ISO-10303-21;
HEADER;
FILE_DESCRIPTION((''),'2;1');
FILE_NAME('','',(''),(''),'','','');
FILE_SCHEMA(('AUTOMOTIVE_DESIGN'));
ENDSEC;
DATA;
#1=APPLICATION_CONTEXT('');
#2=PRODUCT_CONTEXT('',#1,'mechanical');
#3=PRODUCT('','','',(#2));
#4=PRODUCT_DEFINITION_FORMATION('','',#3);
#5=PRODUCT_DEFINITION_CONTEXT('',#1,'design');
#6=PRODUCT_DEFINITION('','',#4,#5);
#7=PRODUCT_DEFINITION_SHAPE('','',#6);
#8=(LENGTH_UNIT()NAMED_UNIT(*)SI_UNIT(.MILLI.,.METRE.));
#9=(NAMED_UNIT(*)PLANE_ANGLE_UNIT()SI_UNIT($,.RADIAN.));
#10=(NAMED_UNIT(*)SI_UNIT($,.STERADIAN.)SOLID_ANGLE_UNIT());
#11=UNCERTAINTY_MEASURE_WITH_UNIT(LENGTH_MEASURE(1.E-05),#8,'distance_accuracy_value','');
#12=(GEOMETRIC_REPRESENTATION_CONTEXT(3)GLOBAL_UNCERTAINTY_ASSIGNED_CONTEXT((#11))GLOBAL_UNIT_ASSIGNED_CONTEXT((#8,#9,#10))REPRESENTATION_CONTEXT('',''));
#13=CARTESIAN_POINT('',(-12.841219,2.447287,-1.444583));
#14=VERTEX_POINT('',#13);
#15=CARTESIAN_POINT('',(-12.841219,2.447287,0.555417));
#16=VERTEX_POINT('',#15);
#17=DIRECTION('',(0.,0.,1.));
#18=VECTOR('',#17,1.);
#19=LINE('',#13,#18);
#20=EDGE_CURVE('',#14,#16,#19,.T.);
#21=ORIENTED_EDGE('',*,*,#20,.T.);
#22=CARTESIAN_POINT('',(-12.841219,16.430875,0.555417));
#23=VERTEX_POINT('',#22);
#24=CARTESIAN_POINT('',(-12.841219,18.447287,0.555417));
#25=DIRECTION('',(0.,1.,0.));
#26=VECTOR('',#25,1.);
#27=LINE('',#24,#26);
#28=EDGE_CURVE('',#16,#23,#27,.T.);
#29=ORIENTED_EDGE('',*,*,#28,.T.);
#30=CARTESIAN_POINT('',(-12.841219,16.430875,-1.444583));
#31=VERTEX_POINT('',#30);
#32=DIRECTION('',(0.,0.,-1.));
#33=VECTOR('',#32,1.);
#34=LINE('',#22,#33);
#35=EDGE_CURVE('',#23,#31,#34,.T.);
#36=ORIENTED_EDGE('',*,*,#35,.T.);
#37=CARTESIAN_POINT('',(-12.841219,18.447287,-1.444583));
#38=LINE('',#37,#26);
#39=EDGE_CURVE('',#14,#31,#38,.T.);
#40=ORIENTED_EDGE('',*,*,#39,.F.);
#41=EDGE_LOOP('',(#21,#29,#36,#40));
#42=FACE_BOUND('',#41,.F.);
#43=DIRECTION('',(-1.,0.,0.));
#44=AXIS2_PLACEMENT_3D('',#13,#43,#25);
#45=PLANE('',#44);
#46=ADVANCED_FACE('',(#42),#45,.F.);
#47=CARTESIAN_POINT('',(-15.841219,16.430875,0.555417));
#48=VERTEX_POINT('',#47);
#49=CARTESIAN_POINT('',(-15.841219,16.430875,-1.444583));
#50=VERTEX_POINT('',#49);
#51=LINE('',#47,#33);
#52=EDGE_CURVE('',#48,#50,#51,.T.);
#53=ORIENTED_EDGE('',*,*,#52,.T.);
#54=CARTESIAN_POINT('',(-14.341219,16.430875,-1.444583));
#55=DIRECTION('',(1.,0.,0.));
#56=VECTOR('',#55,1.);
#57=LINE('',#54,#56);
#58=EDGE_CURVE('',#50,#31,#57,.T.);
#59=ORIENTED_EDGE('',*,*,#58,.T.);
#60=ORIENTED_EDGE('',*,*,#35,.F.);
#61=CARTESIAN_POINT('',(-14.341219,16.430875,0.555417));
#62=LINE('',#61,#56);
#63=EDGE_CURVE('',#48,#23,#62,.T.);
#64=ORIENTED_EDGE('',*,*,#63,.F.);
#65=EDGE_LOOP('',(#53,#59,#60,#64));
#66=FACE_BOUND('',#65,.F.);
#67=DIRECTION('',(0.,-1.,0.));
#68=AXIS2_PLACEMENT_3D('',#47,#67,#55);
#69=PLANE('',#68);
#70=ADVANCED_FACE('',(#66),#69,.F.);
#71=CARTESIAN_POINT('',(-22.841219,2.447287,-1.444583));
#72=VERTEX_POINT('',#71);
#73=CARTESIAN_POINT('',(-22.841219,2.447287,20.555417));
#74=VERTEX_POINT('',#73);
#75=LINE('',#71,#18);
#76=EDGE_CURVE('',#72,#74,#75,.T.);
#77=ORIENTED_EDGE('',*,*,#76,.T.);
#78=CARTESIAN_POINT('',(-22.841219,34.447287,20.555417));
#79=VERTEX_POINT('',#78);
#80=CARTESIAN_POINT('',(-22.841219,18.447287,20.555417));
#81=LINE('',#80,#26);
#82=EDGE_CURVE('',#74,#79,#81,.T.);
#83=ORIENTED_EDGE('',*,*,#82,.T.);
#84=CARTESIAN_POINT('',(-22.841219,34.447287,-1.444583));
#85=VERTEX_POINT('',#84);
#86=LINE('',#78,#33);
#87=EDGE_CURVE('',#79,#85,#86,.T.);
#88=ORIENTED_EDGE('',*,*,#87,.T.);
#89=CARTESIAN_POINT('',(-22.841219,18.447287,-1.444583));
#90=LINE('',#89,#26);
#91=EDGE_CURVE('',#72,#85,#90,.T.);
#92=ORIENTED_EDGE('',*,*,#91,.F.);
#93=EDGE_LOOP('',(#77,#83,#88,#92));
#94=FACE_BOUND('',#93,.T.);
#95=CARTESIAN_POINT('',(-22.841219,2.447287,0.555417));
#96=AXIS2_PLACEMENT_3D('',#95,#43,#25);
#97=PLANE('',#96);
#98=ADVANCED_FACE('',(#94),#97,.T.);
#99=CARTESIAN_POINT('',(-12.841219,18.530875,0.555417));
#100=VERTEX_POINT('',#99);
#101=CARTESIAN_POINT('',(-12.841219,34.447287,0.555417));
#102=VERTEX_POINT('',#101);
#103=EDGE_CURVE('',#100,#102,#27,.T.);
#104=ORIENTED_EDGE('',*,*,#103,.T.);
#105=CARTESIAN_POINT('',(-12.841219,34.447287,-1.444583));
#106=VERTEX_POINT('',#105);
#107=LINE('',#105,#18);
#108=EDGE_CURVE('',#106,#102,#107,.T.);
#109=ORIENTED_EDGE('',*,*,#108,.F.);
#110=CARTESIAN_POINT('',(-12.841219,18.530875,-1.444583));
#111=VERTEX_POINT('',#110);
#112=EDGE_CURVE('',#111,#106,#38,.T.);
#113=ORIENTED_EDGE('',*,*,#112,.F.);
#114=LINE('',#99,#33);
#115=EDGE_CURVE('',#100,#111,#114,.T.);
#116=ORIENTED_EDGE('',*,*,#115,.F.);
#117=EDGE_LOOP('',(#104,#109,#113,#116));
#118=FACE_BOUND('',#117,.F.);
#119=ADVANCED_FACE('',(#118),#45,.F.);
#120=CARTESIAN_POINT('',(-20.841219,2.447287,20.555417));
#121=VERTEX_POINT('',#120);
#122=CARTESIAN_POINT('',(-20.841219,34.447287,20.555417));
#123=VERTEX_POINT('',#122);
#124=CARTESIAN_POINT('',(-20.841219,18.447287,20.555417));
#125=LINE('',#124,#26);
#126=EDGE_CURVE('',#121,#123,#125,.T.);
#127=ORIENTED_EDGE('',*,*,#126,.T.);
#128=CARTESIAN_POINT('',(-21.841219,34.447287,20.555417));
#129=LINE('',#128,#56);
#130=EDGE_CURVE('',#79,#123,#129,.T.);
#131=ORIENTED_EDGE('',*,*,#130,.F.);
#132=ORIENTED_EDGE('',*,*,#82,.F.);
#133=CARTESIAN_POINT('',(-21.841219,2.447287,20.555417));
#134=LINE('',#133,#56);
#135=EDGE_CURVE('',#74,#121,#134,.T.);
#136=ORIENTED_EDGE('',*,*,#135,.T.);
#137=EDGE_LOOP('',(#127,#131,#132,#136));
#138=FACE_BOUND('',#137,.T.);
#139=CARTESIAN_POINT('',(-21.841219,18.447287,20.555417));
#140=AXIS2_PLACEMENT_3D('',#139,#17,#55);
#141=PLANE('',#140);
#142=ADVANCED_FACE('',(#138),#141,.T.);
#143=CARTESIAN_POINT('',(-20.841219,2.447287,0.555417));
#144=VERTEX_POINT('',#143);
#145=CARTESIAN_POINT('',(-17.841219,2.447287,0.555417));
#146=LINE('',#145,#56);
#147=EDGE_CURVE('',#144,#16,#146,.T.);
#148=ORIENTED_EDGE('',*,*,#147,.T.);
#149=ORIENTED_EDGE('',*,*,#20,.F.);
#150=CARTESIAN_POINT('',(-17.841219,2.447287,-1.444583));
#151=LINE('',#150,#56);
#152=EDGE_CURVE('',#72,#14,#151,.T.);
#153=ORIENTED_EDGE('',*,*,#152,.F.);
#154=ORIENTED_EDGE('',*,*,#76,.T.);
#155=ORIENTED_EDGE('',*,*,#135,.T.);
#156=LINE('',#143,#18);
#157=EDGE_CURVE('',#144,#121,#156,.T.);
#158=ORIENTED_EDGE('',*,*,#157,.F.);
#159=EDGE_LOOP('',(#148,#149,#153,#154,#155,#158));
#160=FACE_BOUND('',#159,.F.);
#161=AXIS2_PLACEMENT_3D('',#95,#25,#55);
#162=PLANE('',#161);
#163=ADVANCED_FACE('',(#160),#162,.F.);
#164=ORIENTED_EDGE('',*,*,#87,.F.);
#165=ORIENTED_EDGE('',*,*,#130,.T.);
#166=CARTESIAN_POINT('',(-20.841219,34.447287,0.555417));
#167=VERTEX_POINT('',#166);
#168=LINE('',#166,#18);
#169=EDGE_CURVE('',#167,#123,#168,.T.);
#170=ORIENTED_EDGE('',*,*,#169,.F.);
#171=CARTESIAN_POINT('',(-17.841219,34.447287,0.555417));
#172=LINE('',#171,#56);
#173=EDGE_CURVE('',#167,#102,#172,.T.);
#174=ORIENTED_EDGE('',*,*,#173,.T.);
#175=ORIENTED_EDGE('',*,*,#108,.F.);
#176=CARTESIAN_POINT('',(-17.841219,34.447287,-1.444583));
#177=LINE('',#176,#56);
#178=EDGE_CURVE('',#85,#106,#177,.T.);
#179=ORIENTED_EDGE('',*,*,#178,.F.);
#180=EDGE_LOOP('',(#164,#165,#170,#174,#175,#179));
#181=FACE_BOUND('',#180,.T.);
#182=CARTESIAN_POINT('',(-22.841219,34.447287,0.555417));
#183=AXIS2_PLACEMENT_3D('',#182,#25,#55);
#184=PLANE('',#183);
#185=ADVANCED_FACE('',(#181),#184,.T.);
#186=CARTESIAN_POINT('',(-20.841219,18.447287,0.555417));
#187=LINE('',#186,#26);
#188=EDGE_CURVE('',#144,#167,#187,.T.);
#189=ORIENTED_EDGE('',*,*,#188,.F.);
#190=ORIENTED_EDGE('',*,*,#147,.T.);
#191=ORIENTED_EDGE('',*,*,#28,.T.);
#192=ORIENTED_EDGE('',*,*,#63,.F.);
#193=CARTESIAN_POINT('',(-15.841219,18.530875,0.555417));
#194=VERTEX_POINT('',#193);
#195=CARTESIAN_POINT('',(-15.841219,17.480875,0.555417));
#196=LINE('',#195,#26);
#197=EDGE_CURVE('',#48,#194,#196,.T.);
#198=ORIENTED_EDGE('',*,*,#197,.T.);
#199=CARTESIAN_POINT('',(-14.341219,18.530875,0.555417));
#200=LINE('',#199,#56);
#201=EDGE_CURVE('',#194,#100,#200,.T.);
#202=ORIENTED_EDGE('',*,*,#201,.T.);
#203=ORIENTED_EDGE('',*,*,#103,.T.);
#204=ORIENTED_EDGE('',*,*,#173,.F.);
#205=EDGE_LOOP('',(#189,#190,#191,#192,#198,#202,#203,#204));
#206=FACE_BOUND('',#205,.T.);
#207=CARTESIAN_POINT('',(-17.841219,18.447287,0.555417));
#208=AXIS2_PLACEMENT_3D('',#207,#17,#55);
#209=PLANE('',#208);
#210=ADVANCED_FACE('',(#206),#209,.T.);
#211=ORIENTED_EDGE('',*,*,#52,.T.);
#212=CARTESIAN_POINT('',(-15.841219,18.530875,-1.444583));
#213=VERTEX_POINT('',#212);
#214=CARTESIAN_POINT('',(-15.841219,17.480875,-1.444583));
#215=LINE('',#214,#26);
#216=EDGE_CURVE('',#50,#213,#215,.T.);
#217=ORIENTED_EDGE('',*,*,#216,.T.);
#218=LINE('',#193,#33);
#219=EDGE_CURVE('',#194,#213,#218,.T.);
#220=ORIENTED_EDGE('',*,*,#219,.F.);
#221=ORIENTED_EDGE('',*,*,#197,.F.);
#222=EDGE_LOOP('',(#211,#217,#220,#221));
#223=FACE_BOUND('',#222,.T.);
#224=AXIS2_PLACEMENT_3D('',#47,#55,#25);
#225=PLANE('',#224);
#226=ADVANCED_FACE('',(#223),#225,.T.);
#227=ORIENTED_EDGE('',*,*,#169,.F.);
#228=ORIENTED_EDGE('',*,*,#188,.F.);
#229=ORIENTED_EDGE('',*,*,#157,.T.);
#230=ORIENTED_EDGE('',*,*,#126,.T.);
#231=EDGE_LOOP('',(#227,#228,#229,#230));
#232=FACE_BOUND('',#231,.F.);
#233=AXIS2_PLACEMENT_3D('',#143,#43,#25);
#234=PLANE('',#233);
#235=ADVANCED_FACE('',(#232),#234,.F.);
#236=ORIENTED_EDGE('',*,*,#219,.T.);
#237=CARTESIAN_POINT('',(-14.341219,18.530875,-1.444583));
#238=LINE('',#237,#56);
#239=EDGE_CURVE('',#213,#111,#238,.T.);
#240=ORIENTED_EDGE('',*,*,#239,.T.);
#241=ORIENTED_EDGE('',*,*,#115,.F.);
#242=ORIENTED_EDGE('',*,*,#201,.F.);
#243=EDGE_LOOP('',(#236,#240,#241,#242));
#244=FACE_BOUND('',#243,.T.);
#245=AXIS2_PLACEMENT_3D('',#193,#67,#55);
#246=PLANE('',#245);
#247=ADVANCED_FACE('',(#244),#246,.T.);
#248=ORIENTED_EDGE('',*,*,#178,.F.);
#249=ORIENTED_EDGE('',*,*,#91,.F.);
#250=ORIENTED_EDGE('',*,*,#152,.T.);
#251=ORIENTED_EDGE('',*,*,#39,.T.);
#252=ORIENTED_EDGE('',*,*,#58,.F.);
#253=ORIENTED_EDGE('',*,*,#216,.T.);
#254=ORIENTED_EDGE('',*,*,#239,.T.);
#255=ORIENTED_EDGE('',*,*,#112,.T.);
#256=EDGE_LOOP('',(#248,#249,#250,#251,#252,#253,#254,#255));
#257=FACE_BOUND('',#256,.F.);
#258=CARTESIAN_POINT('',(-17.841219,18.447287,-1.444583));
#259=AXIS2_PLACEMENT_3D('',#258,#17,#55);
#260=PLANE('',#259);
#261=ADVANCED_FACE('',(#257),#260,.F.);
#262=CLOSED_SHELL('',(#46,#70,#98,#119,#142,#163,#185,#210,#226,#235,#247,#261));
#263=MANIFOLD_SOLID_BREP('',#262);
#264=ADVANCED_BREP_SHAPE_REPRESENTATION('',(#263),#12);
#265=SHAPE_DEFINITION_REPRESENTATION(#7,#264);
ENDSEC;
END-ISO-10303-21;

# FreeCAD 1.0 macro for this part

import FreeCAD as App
import Part
import Sketcher


def add_polygon(sketch, points):
    """Adds a closed chain of lines whose ends are joined by coincident constraints."""
    first, n = sketch.GeometryCount, len(points)
    for a, b in zip(points, points[1:] + points[:1]):
        sketch.addGeometry(Part.LineSegment(App.Vector(*a, 0), App.Vector(*b, 0)), False)
    for i in range(n):
        sketch.addConstraint(Sketcher.Constraint("Coincident", first + i, 2, first + (i + 1) % n, 1))

doc = App.newDocument("Part")
params = doc.addObject("Spreadsheet::Sheet", "Params")
for row, (alias, value) in enumerate([
    ("sketch1_width", "10 mm"),
    ("sketch1_height", "32 mm"),
    ("pad1_length", "2 mm"),
    ("sketch2_width", "2 mm"),
    ("sketch2_height", "32 mm"),
    ("pad2_length", "20 mm"),
    ("sketch3_width", "3 mm"),
    ("sketch3_height", "2.1 mm"),
    ("pocket1_length", "2 mm"),
], start=1):
    params.set(f"A{row}", alias)
    params.set(f"B{row}", "=" + value)
    params.setAlias(f"B{row}", alias)

body = doc.addObject("PartDesign::Body", "Body")

# Sketch on XY plane
sketch1 = doc.addObject("Sketcher::SketchObject", "Sketch")
body.addObject(sketch1)
sketch1.AttachmentSupport = (doc.XY_Plane, [""])
sketch1.MapMode = "FlatFace"
add_polygon(sketch1, [(0, 32), (0, 0), (10, 0), (10, 32)])  # lines 0-3
sketch1.addConstraint([
    Sketcher.Constraint("Vertical", 0),
    Sketcher.Constraint("Horizontal", 1),
    Sketcher.Constraint("Vertical", 2),
    Sketcher.Constraint("Horizontal", 3),
    Sketcher.Constraint("Coincident", 0, 2, -1, 1),
    Sketcher.Constraint("DistanceX", 1, 1, 1, 2, 10.0),
    Sketcher.Constraint("DistanceY", 0, 2, 0, 1, 32.0),
])
sketch1.setExpression("Constraints[9]", "Params.sketch1_width")
sketch1.setExpression("Constraints[10]", "Params.sketch1_height")
pad1 = doc.addObject("PartDesign::Pad", "Pad")
body.addObject(pad1)
pad1.Profile = sketch1
pad1.setExpression("Length", "Params.pad1_length")

# Sketch on XY plane
sketch2 = doc.addObject("Sketcher::SketchObject", "Sketch001")
body.addObject(sketch2)
sketch2.AttachmentSupport = (doc.XY_Plane, [""])
sketch2.MapMode = "FlatFace"
sketch2.AttachmentOffset = App.Placement(App.Vector(0, 0, 2), App.Rotation())
add_polygon(sketch2, [(0, 32), (0, 0), (2, 0), (2, 32)])  # lines 0-3
sketch2.addConstraint([
    Sketcher.Constraint("Vertical", 0),
    Sketcher.Constraint("Horizontal", 1),
    Sketcher.Constraint("Vertical", 2),
    Sketcher.Constraint("Horizontal", 3),
    Sketcher.Constraint("Coincident", 0, 2, -1, 1),
    Sketcher.Constraint("DistanceX", 1, 1, 1, 2, 2.0),
    Sketcher.Constraint("DistanceY", 0, 2, 0, 1, 32.0),
])
sketch2.setExpression("Constraints[9]", "Params.sketch2_width")
sketch2.setExpression("Constraints[10]", "Params.sketch2_height")
pad2 = doc.addObject("PartDesign::Pad", "Pad001")
body.addObject(pad2)
pad2.Profile = sketch2
pad2.setExpression("Length", "Params.pad2_length")

# Sketch on XY plane
sketch3 = doc.addObject("Sketcher::SketchObject", "Sketch002")
body.addObject(sketch3)
sketch3.AttachmentSupport = (doc.XY_Plane, [""])
sketch3.MapMode = "FlatFace"
sketch3.AttachmentOffset = App.Placement(App.Vector(0, 0, 2), App.Rotation())
add_polygon(sketch3, [(7, 16.083588), (7, 13.983588), (10, 13.983588), (10, 16.083588)])  # lines 0-3
sketch3.addConstraint([
    Sketcher.Constraint("Vertical", 0),
    Sketcher.Constraint("Horizontal", 1),
    Sketcher.Constraint("Vertical", 2),
    Sketcher.Constraint("Horizontal", 3),
    Sketcher.Constraint("DistanceX", 1, 1, 1, 2, 3.0),
    Sketcher.Constraint("DistanceY", 0, 2, 0, 1, 2.1),
    Sketcher.Constraint("DistanceX", -1, 1, 0, 2, 7.0),
    Sketcher.Constraint("DistanceY", -1, 1, 0, 2, 13.983588),
])
sketch3.setExpression("Constraints[8]", "Params.sketch3_width")
sketch3.setExpression("Constraints[9]", "Params.sketch3_height")
pocket1 = doc.addObject("PartDesign::Pocket", "Pocket")
body.addObject(pocket1)
pocket1.Profile = sketch3
pocket1.setExpression("Length", "Params.pocket1_length")
body2 = doc.addObject("PartDesign::Body", "Body001")
doc.recompute()

body.Placement = App.Placement(App.Vector(-22.841219, 2.447287, -1.444583), App.Rotation(App.Vector(0, 0, 1), 0))
boolean = doc.addObject("PartDesign::Boolean", "Boolean")
body2.addObject(boolean)
boolean.Type = "Fuse"
boolean.addObjects([body])

doc.recompute()
